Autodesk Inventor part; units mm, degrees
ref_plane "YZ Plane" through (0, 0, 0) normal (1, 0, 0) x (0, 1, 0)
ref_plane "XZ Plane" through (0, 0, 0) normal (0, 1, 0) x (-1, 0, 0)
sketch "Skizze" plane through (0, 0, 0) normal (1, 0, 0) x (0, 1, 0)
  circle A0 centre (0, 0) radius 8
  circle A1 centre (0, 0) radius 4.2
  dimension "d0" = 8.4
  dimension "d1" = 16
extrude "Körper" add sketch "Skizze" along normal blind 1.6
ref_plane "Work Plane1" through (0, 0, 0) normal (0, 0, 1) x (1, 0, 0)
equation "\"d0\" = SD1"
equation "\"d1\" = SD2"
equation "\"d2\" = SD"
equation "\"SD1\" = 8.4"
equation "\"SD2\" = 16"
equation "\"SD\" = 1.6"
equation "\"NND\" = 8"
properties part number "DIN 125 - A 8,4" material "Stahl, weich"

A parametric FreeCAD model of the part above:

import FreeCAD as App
import Part
import Sketcher

doc = App.newDocument("Part")
params = doc.addObject("Spreadsheet::Sheet", "Params")
for row, (alias, value) in enumerate([
    ("sketch1_diameter", "16 mm"),
    ("sketch1_diameter2", "8.4 mm"),
    ("pad1_length", "1.6 mm"),
], start=1):
    params.set(f"A{row}", alias)
    params.set(f"B{row}", "=" + value)
    params.setAlias(f"B{row}", alias)

body = doc.addObject("PartDesign::Body", "Body")

# Sketch on YZ plane
sketch1 = body.newObject("Sketcher::SketchObject", "Sketch")
sketch1.AttachmentSupport = (doc.getObject("YZ_Plane"), [""])
sketch1.MapMode = "FlatFace"
sketch1.addGeometry([
    Part.Circle(App.Vector(0, 0, 0), App.Vector(0, 0, 1), 8),
    Part.Circle(App.Vector(0, 0, 0), App.Vector(0, 0, 1), 4.2),
], False)
sketch1.addConstraint([
    Sketcher.Constraint("Coincident", 0, 3, -1, 1),
    Sketcher.Constraint("Coincident", 1, 3, -1, 1),
    Sketcher.Constraint("Diameter", 0, 16.0),
    Sketcher.Constraint("Diameter", 1, 8.4),
])
sketch1.setExpression("Constraints[2]", "Params.sketch1_diameter")
sketch1.setExpression("Constraints[3]", "Params.sketch1_diameter2")
pad1 = body.newObject("PartDesign::Pad", "Pad")
pad1.Profile = sketch1
pad1.setExpression("Length", "Params.pad1_length")

doc.recompute()
